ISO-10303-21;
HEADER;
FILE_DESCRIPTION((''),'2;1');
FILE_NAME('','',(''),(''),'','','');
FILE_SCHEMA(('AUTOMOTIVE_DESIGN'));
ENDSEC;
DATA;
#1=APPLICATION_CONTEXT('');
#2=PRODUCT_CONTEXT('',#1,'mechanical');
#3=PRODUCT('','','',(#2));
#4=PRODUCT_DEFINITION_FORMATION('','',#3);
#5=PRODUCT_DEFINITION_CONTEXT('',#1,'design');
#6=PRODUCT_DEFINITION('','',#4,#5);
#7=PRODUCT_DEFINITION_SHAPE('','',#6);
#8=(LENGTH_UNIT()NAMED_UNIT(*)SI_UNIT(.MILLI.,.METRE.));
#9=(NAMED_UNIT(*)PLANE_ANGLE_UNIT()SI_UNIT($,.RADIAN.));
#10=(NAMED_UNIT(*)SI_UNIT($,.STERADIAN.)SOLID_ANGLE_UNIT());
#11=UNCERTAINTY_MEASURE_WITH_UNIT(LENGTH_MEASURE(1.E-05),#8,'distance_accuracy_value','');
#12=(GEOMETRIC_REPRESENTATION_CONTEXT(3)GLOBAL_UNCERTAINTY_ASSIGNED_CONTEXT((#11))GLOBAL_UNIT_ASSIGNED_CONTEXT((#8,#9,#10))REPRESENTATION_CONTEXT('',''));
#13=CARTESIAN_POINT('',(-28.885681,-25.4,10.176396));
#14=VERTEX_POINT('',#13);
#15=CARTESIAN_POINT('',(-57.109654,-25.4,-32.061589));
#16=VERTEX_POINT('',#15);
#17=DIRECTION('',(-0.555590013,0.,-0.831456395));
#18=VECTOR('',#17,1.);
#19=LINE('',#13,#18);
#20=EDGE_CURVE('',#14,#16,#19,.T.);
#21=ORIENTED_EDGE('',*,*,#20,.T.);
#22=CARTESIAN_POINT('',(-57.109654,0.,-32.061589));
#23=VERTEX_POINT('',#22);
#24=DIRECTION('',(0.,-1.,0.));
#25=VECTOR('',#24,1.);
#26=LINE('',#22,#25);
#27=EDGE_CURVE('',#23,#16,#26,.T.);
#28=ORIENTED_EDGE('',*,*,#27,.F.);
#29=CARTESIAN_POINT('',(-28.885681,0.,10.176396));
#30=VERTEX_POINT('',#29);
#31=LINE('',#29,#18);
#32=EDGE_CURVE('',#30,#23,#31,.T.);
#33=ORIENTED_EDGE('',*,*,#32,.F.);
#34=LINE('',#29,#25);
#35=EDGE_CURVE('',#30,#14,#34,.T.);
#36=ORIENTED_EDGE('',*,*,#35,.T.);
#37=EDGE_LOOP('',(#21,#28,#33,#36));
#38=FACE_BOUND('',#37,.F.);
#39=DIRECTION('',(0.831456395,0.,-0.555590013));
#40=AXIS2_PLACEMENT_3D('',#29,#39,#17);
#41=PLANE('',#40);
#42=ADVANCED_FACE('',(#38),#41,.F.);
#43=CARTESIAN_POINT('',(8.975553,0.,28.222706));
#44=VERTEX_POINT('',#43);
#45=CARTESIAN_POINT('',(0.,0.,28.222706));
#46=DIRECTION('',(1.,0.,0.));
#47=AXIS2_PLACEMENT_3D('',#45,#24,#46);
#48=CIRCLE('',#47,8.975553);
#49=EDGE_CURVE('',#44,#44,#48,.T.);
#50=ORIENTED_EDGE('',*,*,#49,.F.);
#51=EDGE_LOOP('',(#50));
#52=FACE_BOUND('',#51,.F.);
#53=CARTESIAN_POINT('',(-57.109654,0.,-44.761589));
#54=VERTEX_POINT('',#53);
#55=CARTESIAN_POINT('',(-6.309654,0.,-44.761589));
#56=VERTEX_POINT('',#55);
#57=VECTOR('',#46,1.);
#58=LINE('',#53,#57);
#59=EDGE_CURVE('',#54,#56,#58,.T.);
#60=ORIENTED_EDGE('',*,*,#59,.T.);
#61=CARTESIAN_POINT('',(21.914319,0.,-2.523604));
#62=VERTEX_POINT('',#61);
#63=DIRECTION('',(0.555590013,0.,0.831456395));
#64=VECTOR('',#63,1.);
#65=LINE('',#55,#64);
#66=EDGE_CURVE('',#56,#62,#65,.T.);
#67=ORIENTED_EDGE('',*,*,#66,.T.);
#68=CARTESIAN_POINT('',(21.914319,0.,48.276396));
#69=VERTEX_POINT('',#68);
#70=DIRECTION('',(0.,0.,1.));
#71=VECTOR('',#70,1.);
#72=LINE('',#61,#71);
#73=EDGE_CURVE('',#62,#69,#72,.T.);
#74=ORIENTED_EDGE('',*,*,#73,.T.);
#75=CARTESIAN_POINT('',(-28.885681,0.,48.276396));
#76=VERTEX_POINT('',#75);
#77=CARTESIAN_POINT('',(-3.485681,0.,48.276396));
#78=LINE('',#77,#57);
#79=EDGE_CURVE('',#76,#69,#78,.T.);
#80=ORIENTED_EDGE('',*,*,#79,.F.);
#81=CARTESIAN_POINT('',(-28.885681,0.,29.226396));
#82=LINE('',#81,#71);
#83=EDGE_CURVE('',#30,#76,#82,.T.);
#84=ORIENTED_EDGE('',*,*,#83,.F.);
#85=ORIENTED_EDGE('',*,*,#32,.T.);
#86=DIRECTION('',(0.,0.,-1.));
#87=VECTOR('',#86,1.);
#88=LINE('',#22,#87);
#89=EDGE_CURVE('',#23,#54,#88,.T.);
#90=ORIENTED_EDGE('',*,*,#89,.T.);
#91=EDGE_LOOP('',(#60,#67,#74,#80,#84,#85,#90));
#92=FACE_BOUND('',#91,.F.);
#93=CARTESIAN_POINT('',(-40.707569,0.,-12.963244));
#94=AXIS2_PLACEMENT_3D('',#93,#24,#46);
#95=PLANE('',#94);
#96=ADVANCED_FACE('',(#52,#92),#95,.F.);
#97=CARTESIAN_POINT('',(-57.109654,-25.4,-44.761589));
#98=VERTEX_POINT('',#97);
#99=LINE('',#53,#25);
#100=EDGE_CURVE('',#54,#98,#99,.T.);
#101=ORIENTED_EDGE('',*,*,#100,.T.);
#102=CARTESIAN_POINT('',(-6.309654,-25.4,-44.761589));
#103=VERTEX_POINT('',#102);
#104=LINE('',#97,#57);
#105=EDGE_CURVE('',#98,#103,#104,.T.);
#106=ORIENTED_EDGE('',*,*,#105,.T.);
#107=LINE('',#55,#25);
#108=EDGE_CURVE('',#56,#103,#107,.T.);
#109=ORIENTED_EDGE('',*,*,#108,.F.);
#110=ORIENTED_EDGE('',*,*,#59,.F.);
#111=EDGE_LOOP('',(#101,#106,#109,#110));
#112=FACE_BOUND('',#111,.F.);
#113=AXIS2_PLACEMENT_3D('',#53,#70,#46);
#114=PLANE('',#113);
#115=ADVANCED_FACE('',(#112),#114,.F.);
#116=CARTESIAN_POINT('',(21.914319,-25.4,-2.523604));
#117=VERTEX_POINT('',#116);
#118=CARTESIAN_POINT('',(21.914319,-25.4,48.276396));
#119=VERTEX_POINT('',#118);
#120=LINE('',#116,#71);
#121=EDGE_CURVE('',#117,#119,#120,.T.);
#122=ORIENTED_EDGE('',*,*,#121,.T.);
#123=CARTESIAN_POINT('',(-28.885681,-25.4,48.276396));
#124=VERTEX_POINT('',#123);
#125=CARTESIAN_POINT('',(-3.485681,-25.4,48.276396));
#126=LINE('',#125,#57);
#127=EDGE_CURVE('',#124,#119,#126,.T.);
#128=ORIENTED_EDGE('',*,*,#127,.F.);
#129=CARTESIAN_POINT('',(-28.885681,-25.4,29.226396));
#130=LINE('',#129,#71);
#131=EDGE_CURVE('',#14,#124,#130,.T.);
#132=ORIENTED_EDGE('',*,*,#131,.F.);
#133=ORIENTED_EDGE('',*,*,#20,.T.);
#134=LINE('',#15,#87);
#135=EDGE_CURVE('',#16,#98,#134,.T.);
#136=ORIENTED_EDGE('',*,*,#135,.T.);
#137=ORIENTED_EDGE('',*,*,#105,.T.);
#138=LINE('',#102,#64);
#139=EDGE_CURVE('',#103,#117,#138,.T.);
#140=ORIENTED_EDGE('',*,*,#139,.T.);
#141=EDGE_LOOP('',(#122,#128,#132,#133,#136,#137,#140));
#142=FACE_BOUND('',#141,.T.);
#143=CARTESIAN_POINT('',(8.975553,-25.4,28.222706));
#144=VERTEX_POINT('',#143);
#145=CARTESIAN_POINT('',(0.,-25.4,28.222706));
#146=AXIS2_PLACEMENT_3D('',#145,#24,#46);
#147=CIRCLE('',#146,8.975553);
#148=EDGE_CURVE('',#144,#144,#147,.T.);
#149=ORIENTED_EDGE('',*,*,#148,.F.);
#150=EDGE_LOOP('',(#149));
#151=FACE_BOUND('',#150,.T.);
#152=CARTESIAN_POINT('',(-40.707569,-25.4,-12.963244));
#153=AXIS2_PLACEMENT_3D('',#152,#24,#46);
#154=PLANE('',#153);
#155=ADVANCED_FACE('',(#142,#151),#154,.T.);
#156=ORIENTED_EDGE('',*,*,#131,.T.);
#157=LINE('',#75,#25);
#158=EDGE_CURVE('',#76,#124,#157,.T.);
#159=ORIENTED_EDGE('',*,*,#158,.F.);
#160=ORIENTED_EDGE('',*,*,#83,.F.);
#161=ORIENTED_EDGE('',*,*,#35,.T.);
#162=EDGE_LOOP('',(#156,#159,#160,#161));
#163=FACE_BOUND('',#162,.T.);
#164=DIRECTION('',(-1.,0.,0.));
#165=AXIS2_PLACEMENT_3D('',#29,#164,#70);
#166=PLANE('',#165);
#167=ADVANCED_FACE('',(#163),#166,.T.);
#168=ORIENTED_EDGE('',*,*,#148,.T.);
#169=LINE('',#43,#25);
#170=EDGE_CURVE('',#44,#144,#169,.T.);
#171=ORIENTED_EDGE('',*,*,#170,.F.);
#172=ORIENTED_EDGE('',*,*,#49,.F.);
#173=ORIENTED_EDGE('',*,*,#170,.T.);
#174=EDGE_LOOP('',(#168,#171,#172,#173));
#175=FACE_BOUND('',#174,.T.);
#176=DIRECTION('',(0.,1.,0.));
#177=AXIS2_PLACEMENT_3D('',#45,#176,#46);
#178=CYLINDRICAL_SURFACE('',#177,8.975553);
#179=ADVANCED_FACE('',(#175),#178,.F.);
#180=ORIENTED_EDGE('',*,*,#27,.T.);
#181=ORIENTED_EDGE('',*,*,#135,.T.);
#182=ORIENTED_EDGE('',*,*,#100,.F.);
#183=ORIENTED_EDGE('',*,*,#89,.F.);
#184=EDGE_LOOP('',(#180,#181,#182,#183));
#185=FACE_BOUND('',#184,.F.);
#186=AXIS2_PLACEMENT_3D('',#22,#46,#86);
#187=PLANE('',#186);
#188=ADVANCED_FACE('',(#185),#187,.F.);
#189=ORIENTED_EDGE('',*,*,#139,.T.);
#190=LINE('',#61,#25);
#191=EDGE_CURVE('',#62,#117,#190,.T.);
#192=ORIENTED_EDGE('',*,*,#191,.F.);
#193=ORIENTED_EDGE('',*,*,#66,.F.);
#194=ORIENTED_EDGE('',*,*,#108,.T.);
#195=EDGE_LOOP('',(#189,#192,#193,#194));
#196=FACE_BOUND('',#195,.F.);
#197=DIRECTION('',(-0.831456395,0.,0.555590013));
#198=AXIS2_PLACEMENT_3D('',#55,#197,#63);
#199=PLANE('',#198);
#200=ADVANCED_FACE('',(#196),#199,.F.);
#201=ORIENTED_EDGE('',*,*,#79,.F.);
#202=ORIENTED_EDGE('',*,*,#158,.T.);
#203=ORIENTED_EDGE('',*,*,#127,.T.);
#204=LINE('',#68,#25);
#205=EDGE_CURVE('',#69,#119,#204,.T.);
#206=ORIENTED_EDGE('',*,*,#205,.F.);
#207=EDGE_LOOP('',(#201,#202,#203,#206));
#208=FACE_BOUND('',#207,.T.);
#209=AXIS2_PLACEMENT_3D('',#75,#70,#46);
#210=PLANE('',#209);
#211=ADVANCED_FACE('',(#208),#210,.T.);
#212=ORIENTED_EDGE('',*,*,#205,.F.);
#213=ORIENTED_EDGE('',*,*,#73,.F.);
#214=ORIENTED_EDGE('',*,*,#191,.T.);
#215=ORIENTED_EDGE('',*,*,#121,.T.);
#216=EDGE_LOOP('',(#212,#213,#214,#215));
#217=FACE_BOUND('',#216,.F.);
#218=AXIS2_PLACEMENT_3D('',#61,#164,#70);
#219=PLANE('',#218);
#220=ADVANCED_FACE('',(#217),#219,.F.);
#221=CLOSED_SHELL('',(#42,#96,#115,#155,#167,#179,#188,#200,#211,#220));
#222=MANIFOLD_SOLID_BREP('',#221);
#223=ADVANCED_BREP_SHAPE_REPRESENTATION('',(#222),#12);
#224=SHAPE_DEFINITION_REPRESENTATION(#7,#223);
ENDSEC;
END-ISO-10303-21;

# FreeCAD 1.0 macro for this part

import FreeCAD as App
import Part
import Sketcher
Q = App.Units.Quantity

doc = App.newDocument("Part")
params = doc.addObject("Spreadsheet::Sheet", "Params")
for row, (alias, value) in enumerate([
    ("sketch1_width", "2 in"),
    ("sketch1_length", "2 in"),
    ("sketch1_height", "1.5 in"),
    ("pad1_length", "1 in"),
], start=1):
    params.set(f"A{row}", alias)
    params.set(f"B{row}", "=" + value)
    params.setAlias(f"B{row}", alias)

body = doc.addObject("PartDesign::Body", "Body")

# Sketch on XZ plane
sketch1 = doc.addObject("Sketcher::SketchObject", "Sketch")
body.addObject(sketch1)
sketch1.AttachmentSupport = (doc.XZ_Plane, [""])
sketch1.MapMode = "FlatFace"
sketch1.addGeometry([
    Part.LineSegment(App.Vector(-6, -45, 0), App.Vector(22, -3, 0)),  # 0
    Part.LineSegment(App.Vector(22, -3, 0), App.Vector(22, 48, 0)),  # 1
    Part.LineSegment(App.Vector(22, 48, 0), App.Vector(-29, 48, 0)),  # 2
    Part.LineSegment(App.Vector(-29, 48, 0), App.Vector(-29, 10, 0)),  # 3
    Part.LineSegment(App.Vector(-29, 10, 0), App.Vector(-57, -32, 0)),  # 4
    Part.LineSegment(App.Vector(-57, -32, 0), App.Vector(-57, -45, 0)),  # 5
    Part.LineSegment(App.Vector(-57, -45, 0), App.Vector(-6, -45, 0)),  # 6
    Part.Circle(App.Vector(0, 28, 0), App.Vector(0, 0, 1), 9),  # 7
], False)
sketch1.addConstraint([
    Sketcher.Constraint("Coincident", 0, 2, 1, 1),
    Sketcher.Constraint("Coincident", 1, 2, 2, 1),
    Sketcher.Constraint("Coincident", 2, 2, 3, 1),
    Sketcher.Constraint("Coincident", 3, 2, 4, 1),
    Sketcher.Constraint("Coincident", 4, 2, 5, 1),
    Sketcher.Constraint("Coincident", 5, 2, 6, 1),
    Sketcher.Constraint("Coincident", 6, 2, 0, 1),
    Sketcher.Constraint("Vertical", 1),
    Sketcher.Constraint("Horizontal", 2),
    Sketcher.Constraint("Vertical", 3),
    Sketcher.Constraint("Vertical", 5),
    Sketcher.Constraint("Horizontal", 6),
    Sketcher.Constraint("PointOnObject", 7, 3, -2),
    Sketcher.Constraint("Parallel", 0, 4),
    Sketcher.Constraint("Equal", 2, 6),
    Sketcher.Constraint("Equal", 6, 1),
    Sketcher.Constraint("DistanceX", 2, 2, 2, 1, Q("2 in")),
    Sketcher.Constraint("Distance", 0, Q("2 in")),
    Sketcher.Constraint("DistanceY", 3, 2, 3, 1, Q("1.5 in")),
    Sketcher.Constraint("Diameter", 7, 17.951106),
    Sketcher.Constraint("DistanceX", -1, 1, 0, 2, 21.914319),
    Sketcher.Constraint("DistanceY", 4, 2, -1, 1, 32.061589),
    Sketcher.Constraint("DistanceY", 0, 2, 7, 3, 30.746311),
    Sketcher.Constraint("DistanceY", -1, 1, 7, 3, 28.222706),
])
sketch1.setExpression("Constraints[16]", "Params.sketch1_width")
sketch1.setExpression("Constraints[17]", "Params.sketch1_length")
sketch1.setExpression("Constraints[18]", "Params.sketch1_height")
pad1 = doc.addObject("PartDesign::Pad", "Pad")
body.addObject(pad1)
pad1.Profile = sketch1
pad1.setExpression("Length", "Params.pad1_length")

doc.recompute()
